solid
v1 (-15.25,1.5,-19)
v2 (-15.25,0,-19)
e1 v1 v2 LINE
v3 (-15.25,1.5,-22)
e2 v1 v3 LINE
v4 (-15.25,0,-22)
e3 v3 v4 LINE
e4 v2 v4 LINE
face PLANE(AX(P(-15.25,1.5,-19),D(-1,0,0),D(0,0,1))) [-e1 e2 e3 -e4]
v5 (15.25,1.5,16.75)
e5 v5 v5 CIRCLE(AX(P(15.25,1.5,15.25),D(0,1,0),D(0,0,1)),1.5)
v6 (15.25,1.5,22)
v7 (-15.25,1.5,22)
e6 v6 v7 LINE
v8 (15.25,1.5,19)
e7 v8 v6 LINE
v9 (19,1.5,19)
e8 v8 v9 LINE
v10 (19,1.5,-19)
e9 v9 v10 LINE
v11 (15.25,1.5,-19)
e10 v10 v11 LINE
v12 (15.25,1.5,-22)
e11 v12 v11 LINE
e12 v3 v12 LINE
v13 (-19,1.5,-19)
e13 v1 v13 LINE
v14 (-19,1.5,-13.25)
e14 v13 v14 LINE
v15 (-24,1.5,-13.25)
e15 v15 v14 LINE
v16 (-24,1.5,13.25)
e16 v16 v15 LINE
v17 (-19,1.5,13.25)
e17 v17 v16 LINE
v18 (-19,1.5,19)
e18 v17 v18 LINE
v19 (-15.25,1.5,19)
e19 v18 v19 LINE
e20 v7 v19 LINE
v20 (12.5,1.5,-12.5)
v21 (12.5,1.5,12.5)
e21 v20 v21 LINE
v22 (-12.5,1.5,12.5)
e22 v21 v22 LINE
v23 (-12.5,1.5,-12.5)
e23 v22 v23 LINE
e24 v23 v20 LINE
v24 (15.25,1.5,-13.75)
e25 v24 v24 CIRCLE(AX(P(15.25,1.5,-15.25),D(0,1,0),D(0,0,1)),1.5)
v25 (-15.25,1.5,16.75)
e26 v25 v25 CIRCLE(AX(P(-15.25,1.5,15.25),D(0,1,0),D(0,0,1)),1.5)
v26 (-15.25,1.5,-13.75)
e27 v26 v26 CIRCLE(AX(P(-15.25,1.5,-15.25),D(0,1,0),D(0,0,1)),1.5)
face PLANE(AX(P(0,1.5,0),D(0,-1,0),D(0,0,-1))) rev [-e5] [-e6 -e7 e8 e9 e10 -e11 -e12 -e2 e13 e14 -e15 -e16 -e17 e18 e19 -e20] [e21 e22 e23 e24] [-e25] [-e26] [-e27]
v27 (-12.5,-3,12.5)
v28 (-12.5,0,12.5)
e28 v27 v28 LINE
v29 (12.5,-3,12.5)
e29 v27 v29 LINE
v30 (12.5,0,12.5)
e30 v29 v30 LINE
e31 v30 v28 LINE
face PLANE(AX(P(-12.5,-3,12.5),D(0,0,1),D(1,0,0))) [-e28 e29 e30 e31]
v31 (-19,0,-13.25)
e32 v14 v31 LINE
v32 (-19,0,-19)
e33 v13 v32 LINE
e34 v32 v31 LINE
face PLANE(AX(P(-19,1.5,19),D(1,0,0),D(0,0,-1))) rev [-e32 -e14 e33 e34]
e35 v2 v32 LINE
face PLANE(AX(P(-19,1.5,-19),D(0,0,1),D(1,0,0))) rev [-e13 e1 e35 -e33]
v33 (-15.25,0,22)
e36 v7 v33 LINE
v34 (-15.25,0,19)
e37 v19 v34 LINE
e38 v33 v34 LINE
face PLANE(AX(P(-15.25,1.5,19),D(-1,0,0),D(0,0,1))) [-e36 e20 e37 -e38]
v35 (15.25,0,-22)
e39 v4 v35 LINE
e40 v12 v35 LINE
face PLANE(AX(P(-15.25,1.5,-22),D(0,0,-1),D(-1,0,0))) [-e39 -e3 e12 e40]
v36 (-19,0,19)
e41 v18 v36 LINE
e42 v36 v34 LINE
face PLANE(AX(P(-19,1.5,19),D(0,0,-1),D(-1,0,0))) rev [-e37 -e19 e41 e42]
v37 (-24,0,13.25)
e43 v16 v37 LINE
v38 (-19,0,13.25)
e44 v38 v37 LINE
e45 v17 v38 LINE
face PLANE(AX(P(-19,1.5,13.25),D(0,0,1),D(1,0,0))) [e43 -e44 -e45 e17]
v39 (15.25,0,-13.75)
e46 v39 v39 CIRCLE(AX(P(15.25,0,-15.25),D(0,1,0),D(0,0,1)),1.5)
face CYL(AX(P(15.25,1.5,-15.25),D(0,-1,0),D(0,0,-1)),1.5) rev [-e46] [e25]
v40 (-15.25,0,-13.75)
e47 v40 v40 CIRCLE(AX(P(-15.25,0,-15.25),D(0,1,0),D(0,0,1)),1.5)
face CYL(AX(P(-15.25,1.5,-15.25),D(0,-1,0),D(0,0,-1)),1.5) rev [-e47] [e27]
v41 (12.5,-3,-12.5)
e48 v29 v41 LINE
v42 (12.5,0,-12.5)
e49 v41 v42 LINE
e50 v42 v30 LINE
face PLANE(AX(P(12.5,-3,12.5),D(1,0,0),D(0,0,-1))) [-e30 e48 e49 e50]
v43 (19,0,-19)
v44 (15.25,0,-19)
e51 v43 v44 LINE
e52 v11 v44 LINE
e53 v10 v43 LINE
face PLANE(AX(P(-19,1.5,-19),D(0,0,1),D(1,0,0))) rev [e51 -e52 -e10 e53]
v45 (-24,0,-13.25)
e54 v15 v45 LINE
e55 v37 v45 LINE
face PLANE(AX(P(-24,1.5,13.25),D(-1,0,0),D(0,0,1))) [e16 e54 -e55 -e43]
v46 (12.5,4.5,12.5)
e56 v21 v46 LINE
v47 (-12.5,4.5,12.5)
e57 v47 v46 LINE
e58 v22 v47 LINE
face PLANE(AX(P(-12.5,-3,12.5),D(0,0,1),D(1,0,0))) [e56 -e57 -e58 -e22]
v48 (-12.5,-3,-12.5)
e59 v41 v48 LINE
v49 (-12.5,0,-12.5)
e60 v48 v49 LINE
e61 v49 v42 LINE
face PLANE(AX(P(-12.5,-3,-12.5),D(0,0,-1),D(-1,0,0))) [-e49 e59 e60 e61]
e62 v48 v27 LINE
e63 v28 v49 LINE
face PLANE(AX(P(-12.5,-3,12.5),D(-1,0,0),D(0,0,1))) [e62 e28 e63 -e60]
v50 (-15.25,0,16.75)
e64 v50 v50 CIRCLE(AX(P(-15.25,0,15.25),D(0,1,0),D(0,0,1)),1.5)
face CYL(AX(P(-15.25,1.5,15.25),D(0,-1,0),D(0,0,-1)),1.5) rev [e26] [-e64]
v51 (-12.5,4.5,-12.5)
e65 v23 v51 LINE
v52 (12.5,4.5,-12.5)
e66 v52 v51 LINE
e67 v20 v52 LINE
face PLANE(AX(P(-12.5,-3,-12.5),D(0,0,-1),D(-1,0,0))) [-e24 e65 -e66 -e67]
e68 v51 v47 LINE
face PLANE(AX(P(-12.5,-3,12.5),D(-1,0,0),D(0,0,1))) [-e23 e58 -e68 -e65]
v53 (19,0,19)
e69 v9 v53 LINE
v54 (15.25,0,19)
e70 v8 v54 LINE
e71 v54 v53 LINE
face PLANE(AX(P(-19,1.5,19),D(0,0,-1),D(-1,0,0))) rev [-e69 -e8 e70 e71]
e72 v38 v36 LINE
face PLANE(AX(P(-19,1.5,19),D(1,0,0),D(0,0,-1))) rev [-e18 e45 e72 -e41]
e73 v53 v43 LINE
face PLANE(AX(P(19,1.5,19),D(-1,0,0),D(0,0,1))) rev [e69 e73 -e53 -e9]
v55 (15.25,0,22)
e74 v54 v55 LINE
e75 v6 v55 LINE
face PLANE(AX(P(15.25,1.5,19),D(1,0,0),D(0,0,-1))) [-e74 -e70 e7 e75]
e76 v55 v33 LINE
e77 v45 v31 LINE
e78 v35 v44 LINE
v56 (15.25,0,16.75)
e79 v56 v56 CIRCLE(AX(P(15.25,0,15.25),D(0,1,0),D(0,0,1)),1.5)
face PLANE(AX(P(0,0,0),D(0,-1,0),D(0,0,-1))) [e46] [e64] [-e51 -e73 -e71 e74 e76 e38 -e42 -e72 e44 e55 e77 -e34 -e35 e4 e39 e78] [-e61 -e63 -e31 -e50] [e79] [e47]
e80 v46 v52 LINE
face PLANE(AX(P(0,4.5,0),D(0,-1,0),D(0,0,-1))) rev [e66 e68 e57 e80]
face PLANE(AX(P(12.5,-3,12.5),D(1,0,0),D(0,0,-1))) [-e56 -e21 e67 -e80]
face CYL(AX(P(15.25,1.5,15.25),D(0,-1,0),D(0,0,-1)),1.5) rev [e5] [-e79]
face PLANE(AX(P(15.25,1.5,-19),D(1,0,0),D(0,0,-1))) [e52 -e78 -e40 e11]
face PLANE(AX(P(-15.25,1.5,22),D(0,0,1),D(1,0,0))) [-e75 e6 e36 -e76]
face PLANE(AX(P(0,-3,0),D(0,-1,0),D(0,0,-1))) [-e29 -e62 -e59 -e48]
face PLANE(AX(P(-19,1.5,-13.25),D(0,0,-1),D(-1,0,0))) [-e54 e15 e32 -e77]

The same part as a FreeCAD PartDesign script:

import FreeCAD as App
import Part
import Sketcher
from FreeCAD import Vector

doc = App.newDocument("Part")
body = doc.addObject("PartDesign::Body", "Body")

sketch1 = doc.addObject("Sketcher::SketchObject", "Sketch")
body.addObject(sketch1)
sketch1.AttachmentSupport = (doc.XZ_Plane, [""])
sketch1.MapMode = "FlatFace"
sketch1.addGeometry([
    Part.LineSegment(Vector(-19, -19, 0), Vector(-19, 19, 0)),
    Part.LineSegment(Vector(-19, 19, 0), Vector(19, 19, 0)),
    Part.LineSegment(Vector(19, 19, 0), Vector(19, -19, 0)),
    Part.LineSegment(Vector(19, -19, 0), Vector(-19, -19, 0)),
    Part.Circle(Vector(-15.25, 15.25, 0), Vector(0, 0, 1), 1.5),
    Part.Circle(Vector(15.25, 15.25, 0), Vector(0, 0, 1), 1.5),
    Part.Circle(Vector(-15.25, -15.25, 0), Vector(0, 0, 1), 1.5),
    Part.Circle(Vector(15.25, -15.25, 0), Vector(0, 0, 1), 1.5),
], False)
sketch1.addConstraint([
    Sketcher.Constraint("Coincident", 0, 2, 1, 1),
    Sketcher.Constraint("Coincident", 1, 2, 2, 1),
    Sketcher.Constraint("Coincident", 2, 2, 3, 1),
    Sketcher.Constraint("Coincident", 3, 2, 0, 1),
    Sketcher.Constraint("Vertical", 0),
    Sketcher.Constraint("Horizontal", 1),
    Sketcher.Constraint("Vertical", 2),
    Sketcher.Constraint("Horizontal", 3),
    Sketcher.Constraint("Equal", 4, 5),
    Sketcher.Constraint("Equal", 5, 6),
    Sketcher.Constraint("Equal", 6, 7),
    Sketcher.Constraint("Symmetric", 5, 3, 6, 3, -1, 1),
    Sketcher.Constraint("Symmetric", 4, 3, 7, 3, -1, 1),
    Sketcher.Constraint("Symmetric", 0, 2, 2, 2, -1, 1),
    Sketcher.Constraint("Symmetric", 4, 3, 5, 3, -2),
    Sketcher.Constraint("Equal", 3, 0),
    Sketcher.Constraint("Diameter", 4, 3.0),
    Sketcher.Constraint("DistanceX", 1, 1, 1, 2, 38.0),
    Sketcher.Constraint("DistanceX", 4, 3, 5, 3, 30.5),
    Sketcher.Constraint("DistanceY", 6, 3, 4, 3, 30.5),
])
pad1 = doc.addObject("PartDesign::Pad", "Pad")
body.addObject(pad1)
pad1.Profile = sketch1
pad1.Length = 1.5
pad1.Reversed = True

sketch2 = doc.addObject("Sketcher::SketchObject", "Sketch001")
body.addObject(sketch2)
sketch2.AttachmentSupport = (doc.XZ_Plane, [""])
sketch2.MapMode = "FlatFace"
sketch2.addGeometry([
    Part.LineSegment(Vector(-24, 13.25, 0), Vector(-24, -13.25, 0)),
    Part.LineSegment(Vector(-24, -13.25, 0), Vector(-19, -13.25, 0)),
    Part.LineSegment(Vector(-19, -13.25, 0), Vector(-19, 13.25, 0)),
    Part.LineSegment(Vector(-19, 13.25, 0), Vector(-24, 13.25, 0)),
    Part.LineSegment(Vector(-15.25, -19, 0), Vector(-15.25, -22, 0)),
    Part.LineSegment(Vector(-15.25, -22, 0), Vector(15.25, -22, 0)),
    Part.LineSegment(Vector(15.25, -22, 0), Vector(15.25, -19, 0)),
    Part.LineSegment(Vector(15.25, -19, 0), Vector(-15.25, -19, 0)),
    Part.LineSegment(Vector(-15.25, 22, 0), Vector(-15.25, 19, 0)),
    Part.LineSegment(Vector(-15.25, 19, 0), Vector(15.25, 19, 0)),
    Part.LineSegment(Vector(15.25, 19, 0), Vector(15.25, 22, 0)),
    Part.LineSegment(Vector(15.25, 22, 0), Vector(-15.25, 22, 0)),
], False)
sketch2.addConstraint([
    Sketcher.Constraint("Coincident", 0, 2, 1, 1),
    Sketcher.Constraint("Coincident", 1, 2, 2, 1),
    Sketcher.Constraint("Coincident", 2, 2, 3, 1),
    Sketcher.Constraint("Coincident", 3, 2, 0, 1),
    Sketcher.Constraint("Coincident", 4, 2, 5, 1),
    Sketcher.Constraint("Coincident", 5, 2, 6, 1),
    Sketcher.Constraint("Coincident", 6, 2, 7, 1),
    Sketcher.Constraint("Coincident", 7, 2, 4, 1),
    Sketcher.Constraint("Coincident", 8, 2, 9, 1),
    Sketcher.Constraint("Coincident", 9, 2, 10, 1),
    Sketcher.Constraint("Coincident", 10, 2, 11, 1),
    Sketcher.Constraint("Coincident", 11, 2, 8, 1),
    Sketcher.Constraint("Vertical", 0),
    Sketcher.Constraint("Horizontal", 1),
    Sketcher.Constraint("Vertical", 2),
    Sketcher.Constraint("Horizontal", 3),
    Sketcher.Constraint("Vertical", 4),
    Sketcher.Constraint("Horizontal", 5),
    Sketcher.Constraint("Vertical", 6),
    Sketcher.Constraint("Horizontal", 7),
    Sketcher.Constraint("Vertical", 8),
    Sketcher.Constraint("Horizontal", 9),
    Sketcher.Constraint("Vertical", 10),
    Sketcher.Constraint("Horizontal", 11),
    Sketcher.Constraint("Symmetric", 6, 2, 8, 2, -1, 1),
    Sketcher.Constraint("Symmetric", 4, 2, 10, 2, -1, 1),
    Sketcher.Constraint("Vertical", 7, 2, 8, 2),
    Sketcher.Constraint("DistanceX", 1, 1, 1, 2, 5.0),
    Sketcher.Constraint("DistanceY", 4, 2, 4, 1, 3.0),
    Sketcher.Constraint("DistanceX", 5, 1, 5, 2, 30.5),
    Sketcher.Constraint("DistanceY", 0, 2, 0, 1, 26.5),
    Sketcher.Constraint("DistanceX", 0, 2, -1, 1, 24.0),
    Sketcher.Constraint("DistanceY", 4, 2, -1, 1, 22.0),
    Sketcher.Constraint("DistanceY", 0, 2, -1, 1, 13.25),
])
pad2 = doc.addObject("PartDesign::Pad", "Pad001")
body.addObject(pad2)
pad2.Profile = sketch2
pad2.Length = 1.5
pad2.Reversed = True

sketch3 = doc.addObject("Sketcher::SketchObject", "Sketch002")
body.addObject(sketch3)
sketch3.AttachmentSupport = (doc.XZ_Plane, [""])
sketch3.MapMode = "FlatFace"
sketch3.AttachmentOffset = App.Placement(Vector(0, 0, -1.5), App.Rotation())
sketch3.addGeometry([
    Part.LineSegment(Vector(-12.5, -12.5, 0), Vector(-12.5, 12.5, 0)),
    Part.LineSegment(Vector(-12.5, 12.5, 0), Vector(12.5, 12.5, 0)),
    Part.LineSegment(Vector(12.5, 12.5, 0), Vector(12.5, -12.5, 0)),
    Part.LineSegment(Vector(12.5, -12.5, 0), Vector(-12.5, -12.5, 0)),
], False)
sketch3.addConstraint([
    Sketcher.Constraint("Coincident", 0, 2, 1, 1),
    Sketcher.Constraint("Coincident", 1, 2, 2, 1),
    Sketcher.Constraint("Coincident", 2, 2, 3, 1),
    Sketcher.Constraint("Coincident", 3, 2, 0, 1),
    Sketcher.Constraint("Vertical", 0),
    Sketcher.Constraint("Horizontal", 1),
    Sketcher.Constraint("Vertical", 2),
    Sketcher.Constraint("Horizontal", 3),
    Sketcher.Constraint("Symmetric", 0, 2, 2, 2, -1, 1),
    Sketcher.Constraint("Equal", 3, 0),
    Sketcher.Constraint("DistanceX", 1, 1, 1, 2, 25.0),
])
pad3 = doc.addObject("PartDesign::Pad", "Pad002")
body.addObject(pad3)
pad3.Profile = sketch3
pad3.Type = "TwoLengths"
pad3.Length = 3
pad3.Length2 = 4.5
pad3.Reversed = True

doc.recompute()
